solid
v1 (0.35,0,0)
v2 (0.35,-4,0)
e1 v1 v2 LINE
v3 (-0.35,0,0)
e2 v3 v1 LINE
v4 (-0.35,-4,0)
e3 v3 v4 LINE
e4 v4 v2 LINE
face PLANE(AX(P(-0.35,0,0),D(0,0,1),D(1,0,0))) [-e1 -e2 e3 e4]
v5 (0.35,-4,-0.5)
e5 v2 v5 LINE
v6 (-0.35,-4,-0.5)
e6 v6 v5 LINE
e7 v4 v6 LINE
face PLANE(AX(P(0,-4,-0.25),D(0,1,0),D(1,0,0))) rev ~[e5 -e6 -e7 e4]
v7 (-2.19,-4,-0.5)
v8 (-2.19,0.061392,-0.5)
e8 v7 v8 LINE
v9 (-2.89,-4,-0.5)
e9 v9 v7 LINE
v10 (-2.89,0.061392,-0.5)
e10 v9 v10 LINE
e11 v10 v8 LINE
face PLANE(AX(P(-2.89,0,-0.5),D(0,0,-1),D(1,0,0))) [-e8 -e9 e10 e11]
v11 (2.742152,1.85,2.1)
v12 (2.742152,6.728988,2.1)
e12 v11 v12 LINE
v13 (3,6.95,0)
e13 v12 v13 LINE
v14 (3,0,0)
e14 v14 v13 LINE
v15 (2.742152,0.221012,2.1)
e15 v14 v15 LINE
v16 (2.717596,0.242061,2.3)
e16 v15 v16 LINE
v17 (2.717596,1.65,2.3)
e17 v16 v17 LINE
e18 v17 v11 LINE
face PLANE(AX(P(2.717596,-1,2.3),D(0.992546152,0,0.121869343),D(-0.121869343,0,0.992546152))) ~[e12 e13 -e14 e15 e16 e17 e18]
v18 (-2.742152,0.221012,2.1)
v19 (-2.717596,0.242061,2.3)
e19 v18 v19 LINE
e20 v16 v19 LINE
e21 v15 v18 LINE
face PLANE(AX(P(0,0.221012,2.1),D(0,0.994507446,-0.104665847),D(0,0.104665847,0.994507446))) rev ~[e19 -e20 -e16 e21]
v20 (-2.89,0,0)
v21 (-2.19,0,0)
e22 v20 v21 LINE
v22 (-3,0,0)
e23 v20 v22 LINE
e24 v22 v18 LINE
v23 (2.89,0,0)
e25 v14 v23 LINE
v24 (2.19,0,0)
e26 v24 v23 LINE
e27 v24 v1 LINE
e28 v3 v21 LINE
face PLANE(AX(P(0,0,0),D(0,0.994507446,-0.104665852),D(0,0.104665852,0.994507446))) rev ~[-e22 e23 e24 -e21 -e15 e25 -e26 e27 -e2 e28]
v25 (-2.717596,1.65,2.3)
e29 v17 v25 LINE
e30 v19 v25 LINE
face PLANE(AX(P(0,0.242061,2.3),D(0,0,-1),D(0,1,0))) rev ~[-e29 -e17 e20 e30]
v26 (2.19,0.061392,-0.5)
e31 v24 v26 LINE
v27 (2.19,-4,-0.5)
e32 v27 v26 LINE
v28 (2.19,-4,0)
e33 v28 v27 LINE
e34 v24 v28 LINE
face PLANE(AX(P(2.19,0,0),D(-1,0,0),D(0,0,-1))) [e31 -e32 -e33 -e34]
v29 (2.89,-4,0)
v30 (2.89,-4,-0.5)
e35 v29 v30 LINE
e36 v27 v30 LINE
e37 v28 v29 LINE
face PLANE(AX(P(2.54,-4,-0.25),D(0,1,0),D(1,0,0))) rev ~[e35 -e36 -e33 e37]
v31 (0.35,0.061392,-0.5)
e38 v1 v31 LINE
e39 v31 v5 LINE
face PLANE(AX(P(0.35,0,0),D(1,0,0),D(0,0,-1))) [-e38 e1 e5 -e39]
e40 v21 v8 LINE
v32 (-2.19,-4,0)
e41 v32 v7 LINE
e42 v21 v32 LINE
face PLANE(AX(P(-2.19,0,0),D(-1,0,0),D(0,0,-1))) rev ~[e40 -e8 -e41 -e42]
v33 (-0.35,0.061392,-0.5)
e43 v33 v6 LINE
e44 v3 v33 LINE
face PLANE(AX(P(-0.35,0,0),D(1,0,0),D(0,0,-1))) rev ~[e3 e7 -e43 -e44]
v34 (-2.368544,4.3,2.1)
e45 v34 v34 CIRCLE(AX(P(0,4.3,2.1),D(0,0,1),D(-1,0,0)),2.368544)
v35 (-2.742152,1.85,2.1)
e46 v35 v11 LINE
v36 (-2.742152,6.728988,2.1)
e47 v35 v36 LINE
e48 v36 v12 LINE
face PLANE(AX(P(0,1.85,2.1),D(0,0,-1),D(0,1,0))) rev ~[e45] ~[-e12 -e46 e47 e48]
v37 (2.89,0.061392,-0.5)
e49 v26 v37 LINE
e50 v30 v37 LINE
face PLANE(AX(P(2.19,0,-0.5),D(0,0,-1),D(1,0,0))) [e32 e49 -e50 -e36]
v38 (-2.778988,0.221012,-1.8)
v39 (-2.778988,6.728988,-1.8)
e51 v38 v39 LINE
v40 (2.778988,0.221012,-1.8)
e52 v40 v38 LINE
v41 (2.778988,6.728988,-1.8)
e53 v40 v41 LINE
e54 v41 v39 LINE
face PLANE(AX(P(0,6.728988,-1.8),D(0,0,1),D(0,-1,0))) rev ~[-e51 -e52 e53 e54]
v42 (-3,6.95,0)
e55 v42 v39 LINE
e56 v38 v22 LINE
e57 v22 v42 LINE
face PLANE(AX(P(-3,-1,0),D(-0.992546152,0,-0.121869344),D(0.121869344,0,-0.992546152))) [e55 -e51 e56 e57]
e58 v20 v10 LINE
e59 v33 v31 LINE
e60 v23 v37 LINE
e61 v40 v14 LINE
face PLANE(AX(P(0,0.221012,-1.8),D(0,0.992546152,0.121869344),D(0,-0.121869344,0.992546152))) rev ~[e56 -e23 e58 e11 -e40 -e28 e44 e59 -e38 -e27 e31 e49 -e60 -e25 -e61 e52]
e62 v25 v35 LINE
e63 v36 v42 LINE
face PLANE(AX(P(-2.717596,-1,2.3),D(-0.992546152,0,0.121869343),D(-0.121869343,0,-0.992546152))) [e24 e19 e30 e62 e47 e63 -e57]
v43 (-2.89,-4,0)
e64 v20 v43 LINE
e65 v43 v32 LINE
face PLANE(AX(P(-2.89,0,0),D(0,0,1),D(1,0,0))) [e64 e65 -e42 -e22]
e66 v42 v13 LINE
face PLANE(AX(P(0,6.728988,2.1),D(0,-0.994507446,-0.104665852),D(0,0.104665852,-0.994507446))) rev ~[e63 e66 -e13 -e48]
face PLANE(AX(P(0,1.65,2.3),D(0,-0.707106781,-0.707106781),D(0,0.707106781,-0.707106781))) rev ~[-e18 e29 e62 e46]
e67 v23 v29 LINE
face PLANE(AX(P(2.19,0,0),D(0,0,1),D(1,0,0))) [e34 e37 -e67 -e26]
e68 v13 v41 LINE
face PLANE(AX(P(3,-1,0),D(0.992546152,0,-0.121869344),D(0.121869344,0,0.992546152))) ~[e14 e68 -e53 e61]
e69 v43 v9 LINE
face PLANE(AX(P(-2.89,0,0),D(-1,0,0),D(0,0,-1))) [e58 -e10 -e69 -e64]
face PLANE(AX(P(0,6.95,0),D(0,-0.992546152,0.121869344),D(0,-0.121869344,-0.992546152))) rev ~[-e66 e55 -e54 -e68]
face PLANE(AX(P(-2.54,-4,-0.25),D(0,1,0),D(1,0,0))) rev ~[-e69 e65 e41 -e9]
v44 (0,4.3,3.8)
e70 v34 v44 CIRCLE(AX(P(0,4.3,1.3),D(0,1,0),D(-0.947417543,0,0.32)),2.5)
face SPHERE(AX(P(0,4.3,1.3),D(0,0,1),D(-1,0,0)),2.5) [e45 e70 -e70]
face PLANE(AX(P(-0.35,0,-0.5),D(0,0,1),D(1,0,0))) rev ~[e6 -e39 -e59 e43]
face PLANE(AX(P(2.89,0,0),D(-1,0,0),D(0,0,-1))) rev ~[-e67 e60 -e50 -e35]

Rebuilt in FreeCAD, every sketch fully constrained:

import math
import FreeCAD as App
import Part
import Sketcher
Q = App.Units.Quantity


def add_polygon(sketch, points):
    """Adds a closed chain of lines whose ends are joined by coincident constraints."""
    first, n = sketch.GeometryCount, len(points)
    for a, b in zip(points, points[1:] + points[:1]):
        sketch.addGeometry(Part.LineSegment(App.Vector(*a, 0), App.Vector(*b, 0)), False)
    for i in range(n):
        sketch.addConstraint(Sketcher.Constraint("Coincident", first + i, 2, first + (i + 1) % n, 1))

doc = App.newDocument("Part")
body = doc.addObject("PartDesign::Body", "Body")

sketch1 = body.newObject("Sketcher::SketchObject", "Sketch")
sketch1.AttachmentSupport = (doc.getObject("YZ_Plane"), [""])
sketch1.MapMode = "FlatFace"
add_polygon(sketch1, [(6.73, -1.8), (6.95, 0), (6.73, 2.1), (1.85, 2.1), (1.65, 2.3), (0.24, 2.3), (0.22, 2.1), (0, 0), (0.22, -1.8)])
sketch1.addConstraint([
    Sketcher.Constraint("Horizontal", 2),
    Sketcher.Constraint("Horizontal", 4),
    Sketcher.Constraint("Horizontal", 8),
    Sketcher.Constraint("Coincident", 6, 2, -1, 1),
    Sketcher.Constraint("PointOnObject", 0, 2, -1),
    Sketcher.Constraint("Parallel", 5, 6),
    Sketcher.Constraint("Horizontal", 2, 2, 5, 2),
    Sketcher.Constraint("Vertical", 5, 2, 7, 2),
    Sketcher.Constraint("Vertical", 1, 2, 8, 2),
    Sketcher.Constraint("Equal", 1, 6),
    Sketcher.Constraint("Angle", 0, Q("83 deg")),
    Sketcher.Constraint("Angle", 3, Q("135 deg")),
    Sketcher.Constraint("DistanceY", -1, 1, 1, 2, Q("2.1 mm")),
    Sketcher.Constraint("DistanceY", -1, 1, 3, 2, Q("2.3 mm")),
    Sketcher.Constraint("DistanceY", 7, 2, -1, 1, Q("1.8 mm")),
    Sketcher.Constraint("DistanceX", 2, 2, 0, 2, Q("5.1 mm")),
    Sketcher.Constraint("DistanceX", -1, 1, 0, 2, Q("6.95 mm")),
])
pad1 = body.newObject("PartDesign::Pad", "Pad")
pad1.Profile = sketch1
pad1.Length = 6
pad1.Midplane = True

sketch2 = body.newObject("Sketcher::SketchObject", "Sketch001")
sketch2.AttachmentSupport = (doc.getObject("XZ_Plane"), [""])
sketch2.MapMode = "FlatFace"
sketch2.AttachmentOffset = App.Placement(App.Vector(0, 0, 1), App.Rotation())
add_polygon(sketch2, [(0.2, 26.3), (-2.7, 2.3), (-3, 0), (-2.8, -1.8), (0.2, -25.8), (-48.2, -25.7), (-48.1, 26.3)])
sketch2.addConstraint([
    Sketcher.Constraint("PointOnObject", 1, 2, -1),
    Sketcher.Constraint("Parallel", 0, 1),
    Sketcher.Constraint("Parallel", 2, 3),
    Sketcher.Constraint("Perpendicular", 4, 5),
    Sketcher.Constraint("Perpendicular", 5, 6),
    Sketcher.Constraint("Equal", 0, 3),
    Sketcher.Constraint("Equal", 4, 6),
    Sketcher.Constraint("Angle", 0, Q("-97 deg")),
    Sketcher.Constraint("Angle", 2, Q("-83 deg")),
    Sketcher.Constraint("DistanceX", 1, 2, -1, 1, Q("3 mm")),
    Sketcher.Constraint("DistanceY", -1, 1, 0, 2, Q("2.3 mm")),
    Sketcher.Constraint("DistanceY", 2, 2, -1, 1, Q("1.8 mm")),
    Sketcher.Constraint("Distance", 5, Q("52.082372 mm")),
    Sketcher.Constraint("DistanceX", 5, 2, -1, 1, Q("48.114491 mm")),
])
pocket1 = body.newObject("PartDesign::Pocket", "Pocket")
pocket1.Profile = sketch2
pocket1.Length = 8.95

sketch3 = body.newObject("Sketcher::SketchObject", "Sketch002")
sketch3.AttachmentSupport = (doc.getObject("XZ_Plane"), [""])
sketch3.MapMode = "FlatFace"
sketch3.AttachmentOffset = App.Placement(App.Vector(0, 0, -4.3), App.Rotation())
sketch3.addGeometry([
    Part.LineSegment(App.Vector(0, 2.1, 0), App.Vector(-2.4, 2.1, 0)),
    Part.ArcOfCircle(Part.Circle(App.Vector(0, 1.3, 0), App.Vector(0, 0, 1), 2.5), math.radians(90), math.radians(161)),
    Part.LineSegment(App.Vector(0, 3.8, 0), App.Vector(0, 2.1, 0)),
], False)
sketch3.addConstraint([
    Sketcher.Constraint("Coincident", 0, 2, 1, 2),
    Sketcher.Constraint("Coincident", 1, 1, 2, 1),
    Sketcher.Constraint("Coincident", 2, 2, 0, 1),
    Sketcher.Constraint("Horizontal", 0),
    Sketcher.Constraint("Vertical", 2),
    Sketcher.Constraint("PointOnObject", 1, 3, -2),
    Sketcher.Constraint("PointOnObject", 1, 1, -2),
    Sketcher.Constraint("Radius", 1, Q("2.5 mm")),
    Sketcher.Constraint("DistanceY", 2, 2, 2, 1, Q("1.7 mm")),
    Sketcher.Constraint("DistanceY", -1, 1, 1, 3, Q("1.3 mm")),
])
revolution = body.newObject("PartDesign::Revolution", "Revolution")
revolution.Profile = sketch3
revolution.ReferenceAxis = (sketch3, ["V_Axis"])
revolution.Angle = 360
doc.recompute()

mirrored = body.newObject("PartDesign::Mirrored", "Mirrored")
mirrored.Originals = [pocket1]
mirrored.MirrorPlane = (doc.getObject("YZ_Plane"), [""])
body.Tip = mirrored

sketch4 = body.newObject("Sketcher::SketchObject", "Sketch003")
sketch4.AttachmentSupport = (doc.getObject("XZ_Plane"), [""])
sketch4.MapMode = "FlatFace"
add_polygon(sketch4, [(-0.3, -0.5), (-0.3, 0), (0.3, 0), (0.3, -0.5)])
sketch4.addConstraint([
    Sketcher.Constraint("Vertical", 0),
    Sketcher.Constraint("Horizontal", 1),
    Sketcher.Constraint("Vertical", 2),
    Sketcher.Constraint("Horizontal", 3),
    Sketcher.Constraint("Symmetric", 0, 2, 1, 2, -1, 1),
    Sketcher.Constraint("DistanceX", 1, 1, 1, 2, Q("0.7 mm")),
    Sketcher.Constraint("DistanceY", 0, 1, 0, 2, Q("0.5 mm")),
])
pad2 = body.newObject("PartDesign::Pad", "Pad001")
pad2.Profile = sketch4
pad2.Length = 0.061392
pad2.Reversed = True

sketch5 = body.newObject("Sketcher::SketchObject", "Sketch004")
sketch5.AttachmentSupport = (doc.getObject("XZ_Plane"), [""])
sketch5.MapMode = "FlatFace"
add_polygon(sketch5, [(2.2, -0.5), (2.2, 0), (2.9, 0), (2.9, -0.5)])
sketch5.addConstraint([
    Sketcher.Constraint("Vertical", 0),
    Sketcher.Constraint("Horizontal", 1),
    Sketcher.Constraint("Vertical", 2),
    Sketcher.Constraint("Horizontal", 3),
    Sketcher.Constraint("PointOnObject", 0, 2, -1),
    Sketcher.Constraint("DistanceX", 1, 1, 1, 2, Q("0.7 mm")),
    Sketcher.Constraint("DistanceY", 0, 1, 0, 2, Q("0.5 mm")),
    Sketcher.Constraint("DistanceX", -1, 1, 0, 2, Q("2.19 mm")),
])
pad3 = body.newObject("PartDesign::Pad", "Pad002")
pad3.Profile = sketch5
pad3.Length = 0.061392
pad3.Reversed = True

sketch6 = body.newObject("Sketcher::SketchObject", "Sketch005")
sketch6.AttachmentSupport = (doc.getObject("XZ_Plane"), [""])
sketch6.MapMode = "FlatFace"
add_polygon(sketch6, [(-2.9, -0.5), (-2.9, 0), (-2.2, 0), (-2.2, -0.5)])
sketch6.addConstraint([
    Sketcher.Constraint("Vertical", 0),
    Sketcher.Constraint("Horizontal", 1),
    Sketcher.Constraint("Vertical", 2),
    Sketcher.Constraint("Horizontal", 3),
    Sketcher.Constraint("PointOnObject", 0, 2, -1),
    Sketcher.Constraint("DistanceX", 1, 1, 1, 2, Q("0.7 mm")),
    Sketcher.Constraint("DistanceY", 0, 1, 0, 2, Q("0.5 mm")),
    Sketcher.Constraint("DistanceX", 0, 2, -1, 1, Q("2.89 mm")),
])
pad4 = body.newObject("PartDesign::Pad", "Pad003")
pad4.Profile = sketch6
pad4.Length = 0.061392
pad4.Reversed = True

sketch7 = body.newObject("Sketcher::SketchObject", "Sketch006")
sketch7.AttachmentSupport = (doc.getObject("XZ_Plane"), [""])
sketch7.MapMode = "FlatFace"
add_polygon(sketch7, [(-0.3, -0.5), (-0.3, 0), (0.3, 0), (0.3, -0.5)])
add_polygon(sketch7, [(2.2, -0.5), (2.2, 0), (2.9, 0), (2.9, -0.5)])
add_polygon(sketch7, [(-2.9, -0.5), (-2.9, 0), (-2.2, 0), (-2.2, -0.5)])
sketch7.addConstraint([
    Sketcher.Constraint("Vertical", 0),
    Sketcher.Constraint("Horizontal", 1),
    Sketcher.Constraint("Vertical", 2),
    Sketcher.Constraint("Horizontal", 3),
    Sketcher.Constraint("Vertical", 4),
    Sketcher.Constraint("Horizontal", 5),
    Sketcher.Constraint("Vertical", 6),
    Sketcher.Constraint("Horizontal", 7),
    Sketcher.Constraint("Vertical", 8),
    Sketcher.Constraint("Horizontal", 9),
    Sketcher.Constraint("Vertical", 10),
    Sketcher.Constraint("Horizontal", 11),
    Sketcher.Constraint("Symmetric", 0, 2, 1, 2, -1, 1),
    Sketcher.Constraint("Symmetric", 5, 2, 8, 2, -1, 1),
    Sketcher.Constraint("Symmetric", 4, 2, 9, 2, -2),
    Sketcher.Constraint("Horizontal", 3, 2, 6, 2),
    Sketcher.Constraint("Horizontal", 7, 2, 10, 2),
    Sketcher.Constraint("Equal", 3, 5),
    Sketcher.Constraint("DistanceX", 1, 1, 1, 2, Q("0.7 mm")),
    Sketcher.Constraint("DistanceY", 0, 1, 0, 2, Q("0.5 mm")),
    Sketcher.Constraint("DistanceX", -1, 1, 4, 2, Q("2.19 mm")),
])
pad5 = body.newObject("PartDesign::Pad", "Pad004")
pad5.Profile = sketch7
pad5.Length = 4

doc.recompute()
